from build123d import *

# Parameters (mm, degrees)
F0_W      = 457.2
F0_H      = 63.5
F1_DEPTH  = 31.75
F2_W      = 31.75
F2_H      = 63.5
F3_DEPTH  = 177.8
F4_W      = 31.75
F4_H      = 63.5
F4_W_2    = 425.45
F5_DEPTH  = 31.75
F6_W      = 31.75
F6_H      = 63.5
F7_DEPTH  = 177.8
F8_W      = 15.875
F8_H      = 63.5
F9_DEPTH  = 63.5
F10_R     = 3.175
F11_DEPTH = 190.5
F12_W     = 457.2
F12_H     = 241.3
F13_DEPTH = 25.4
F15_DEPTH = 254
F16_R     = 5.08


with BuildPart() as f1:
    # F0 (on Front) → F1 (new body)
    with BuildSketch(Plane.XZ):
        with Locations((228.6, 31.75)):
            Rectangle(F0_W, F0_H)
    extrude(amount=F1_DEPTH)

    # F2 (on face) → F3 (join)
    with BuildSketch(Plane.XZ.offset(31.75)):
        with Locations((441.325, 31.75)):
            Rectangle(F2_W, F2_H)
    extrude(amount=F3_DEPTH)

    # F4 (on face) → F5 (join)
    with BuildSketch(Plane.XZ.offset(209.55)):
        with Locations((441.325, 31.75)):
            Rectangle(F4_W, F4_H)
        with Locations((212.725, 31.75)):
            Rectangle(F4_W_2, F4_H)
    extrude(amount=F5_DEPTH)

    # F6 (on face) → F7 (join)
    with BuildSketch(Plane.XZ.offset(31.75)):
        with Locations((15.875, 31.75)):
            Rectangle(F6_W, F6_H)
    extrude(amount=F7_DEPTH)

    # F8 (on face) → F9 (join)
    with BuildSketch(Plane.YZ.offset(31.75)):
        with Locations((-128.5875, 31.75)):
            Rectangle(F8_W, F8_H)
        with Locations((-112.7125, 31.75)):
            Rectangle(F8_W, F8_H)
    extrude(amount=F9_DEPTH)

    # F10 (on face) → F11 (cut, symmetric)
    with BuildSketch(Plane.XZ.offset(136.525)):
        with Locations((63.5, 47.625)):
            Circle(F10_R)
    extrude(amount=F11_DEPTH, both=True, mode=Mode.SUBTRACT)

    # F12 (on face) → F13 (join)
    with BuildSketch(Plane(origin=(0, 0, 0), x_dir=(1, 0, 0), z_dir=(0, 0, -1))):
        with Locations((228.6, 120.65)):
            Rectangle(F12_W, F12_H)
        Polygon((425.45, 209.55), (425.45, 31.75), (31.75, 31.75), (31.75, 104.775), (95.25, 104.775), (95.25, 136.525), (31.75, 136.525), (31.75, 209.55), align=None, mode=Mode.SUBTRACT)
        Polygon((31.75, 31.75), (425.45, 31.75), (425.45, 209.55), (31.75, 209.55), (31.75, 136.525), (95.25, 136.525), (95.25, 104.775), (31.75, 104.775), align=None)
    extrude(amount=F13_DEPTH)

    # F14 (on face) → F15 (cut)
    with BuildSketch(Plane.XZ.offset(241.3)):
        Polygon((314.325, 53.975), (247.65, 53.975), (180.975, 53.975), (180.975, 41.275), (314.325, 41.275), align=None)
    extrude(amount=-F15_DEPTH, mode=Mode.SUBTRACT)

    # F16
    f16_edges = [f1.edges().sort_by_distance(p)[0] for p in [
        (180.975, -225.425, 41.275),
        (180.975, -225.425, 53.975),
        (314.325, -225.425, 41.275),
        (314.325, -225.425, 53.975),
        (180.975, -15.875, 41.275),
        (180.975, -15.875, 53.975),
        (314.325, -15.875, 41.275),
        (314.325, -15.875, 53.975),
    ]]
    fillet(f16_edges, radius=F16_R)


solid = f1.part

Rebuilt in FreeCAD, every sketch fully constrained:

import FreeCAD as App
import Part
import Sketcher
from FreeCAD import Vector
Q = App.Units.Quantity


def edges_at(feature, points):
    """Names of the edges that pass closest to the given points."""
    edges = feature.Shape.Edges
    near = lambda p: min(range(len(edges)), key=lambda i: edges[i].distToShape(Part.Vertex(*p))[0])
    return sorted({f"Edge{near(p) + 1}" for p in points})


def add_polygon(sketch, points):
    """Adds a closed chain of lines whose ends are joined by coincident constraints."""
    first, n = sketch.GeometryCount, len(points)
    for a, b in zip(points, points[1:] + points[:1]):
        sketch.addGeometry(Part.LineSegment(App.Vector(*a, 0), App.Vector(*b, 0)), False)
    for i in range(n):
        sketch.addConstraint(Sketcher.Constraint("Coincident", first + i, 2, first + (i + 1) % n, 1))

doc = App.newDocument("Part")
body = doc.addObject("PartDesign::Body", "Body")

# Sketch on XZ plane
sketch1 = doc.addObject("Sketcher::SketchObject", "Sketch")
body.addObject(sketch1)
sketch1.AttachmentSupport = (doc.XZ_Plane, [""])
sketch1.MapMode = "FlatFace"
add_polygon(sketch1, [(0, 64), (0, 0), (457, 0), (457, 64)])  # lines 0-3
sketch1.addConstraint([
    Sketcher.Constraint("Vertical", 0),
    Sketcher.Constraint("Horizontal", 1),
    Sketcher.Constraint("Vertical", 2),
    Sketcher.Constraint("Horizontal", 3),
    Sketcher.Constraint("Coincident", 0, 2, -1, 1),
    Sketcher.Constraint("DistanceX", 1, 1, 1, 2, Q("18 in")),
    Sketcher.Constraint("DistanceY", 0, 2, 0, 1, Q("2.5 in")),
])
pad1 = doc.addObject("PartDesign::Pad", "Pad")
body.addObject(pad1)
pad1.Profile = sketch1
pad1.Length = Q("1.25 in")

# Sketch on XZ plane
sketch2 = doc.addObject("Sketcher::SketchObject", "Sketch001")
body.addObject(sketch2)
sketch2.AttachmentSupport = (doc.XZ_Plane, [""])
sketch2.MapMode = "FlatFace"
sketch2.AttachmentOffset = App.Placement(Vector(0, 0, 1.25 * 25.4), App.Rotation())
add_polygon(sketch2, [(425, 64), (425, 0), (457, 0), (457, 64)])  # lines 0-3
sketch2.addConstraint([
    Sketcher.Constraint("Vertical", 0),
    Sketcher.Constraint("Horizontal", 1),
    Sketcher.Constraint("Vertical", 2),
    Sketcher.Constraint("Horizontal", 3),
    Sketcher.Constraint("PointOnObject", 0, 2, -1),
    Sketcher.Constraint("DistanceY", 0, 2, 0, 1, Q("2.5 in")),
    Sketcher.Constraint("DistanceX", -1, 1, 1, 2, Q("18 in")),
    Sketcher.Constraint("DistanceX", 1, 1, 1, 2, Q("1.25 in")),
])
pad2 = doc.addObject("PartDesign::Pad", "Pad001")
body.addObject(pad2)
pad2.Profile = sketch2
pad2.Length = Q("7 in")

# Sketch on XZ plane
sketch3 = doc.addObject("Sketcher::SketchObject", "Sketch002")
body.addObject(sketch3)
sketch3.AttachmentSupport = (doc.XZ_Plane, [""])
sketch3.MapMode = "FlatFace"
sketch3.AttachmentOffset = App.Placement(Vector(0, 0, 8.25 * 25.4), App.Rotation())
add_polygon(sketch3, [(457, 0), (457, 64), (0, 64), (0, 0)])  # lines 0-3
sketch3.addConstraint([
    Sketcher.Constraint("Vertical", 0),
    Sketcher.Constraint("Horizontal", 1),
    Sketcher.Constraint("Vertical", 2),
    Sketcher.Constraint("Horizontal", 3),
    Sketcher.Constraint("Coincident", 2, 2, -1, 1),
    Sketcher.Constraint("DistanceX", 1, 2, 1, 1, Q("18 in")),
    Sketcher.Constraint("DistanceY", 0, 1, 0, 2, Q("2.5 in")),
])
pad3 = doc.addObject("PartDesign::Pad", "Pad002")
body.addObject(pad3)
pad3.Profile = sketch3
pad3.Length = Q("1.25 in")

# Sketch on XZ plane
sketch4 = doc.addObject("Sketcher::SketchObject", "Sketch003")
body.addObject(sketch4)
sketch4.AttachmentSupport = (doc.XZ_Plane, [""])
sketch4.MapMode = "FlatFace"
sketch4.AttachmentOffset = App.Placement(Vector(0, 0, 1.25 * 25.4), App.Rotation())
add_polygon(sketch4, [(0, 64), (0, 0), (32, 0), (32, 64)])  # lines 0-3
sketch4.addConstraint([
    Sketcher.Constraint("Vertical", 0),
    Sketcher.Constraint("Horizontal", 1),
    Sketcher.Constraint("Vertical", 2),
    Sketcher.Constraint("Horizontal", 3),
    Sketcher.Constraint("Coincident", 0, 2, -1, 1),
    Sketcher.Constraint("DistanceY", 0, 2, 0, 1, Q("2.5 in")),
    Sketcher.Constraint("DistanceX", 1, 1, 1, 2, Q("1.25 in")),
])
pad4 = doc.addObject("PartDesign::Pad", "Pad003")
body.addObject(pad4)
pad4.Profile = sketch4
pad4.Length = Q("7 in")

# Sketch on YZ plane
sketch5 = doc.addObject("Sketcher::SketchObject", "Sketch004")
body.addObject(sketch5)
sketch5.AttachmentSupport = (doc.YZ_Plane, [""])
sketch5.MapMode = "FlatFace"
sketch5.AttachmentOffset = App.Placement(Vector(0, 0, 1.25 * 25.4), App.Rotation())
add_polygon(sketch5, [(-137, 64), (-137, 0), (-105, 0), (-105, 64)])  # lines 0-3
sketch5.addConstraint([
    Sketcher.Constraint("Vertical", 0),
    Sketcher.Constraint("Horizontal", 1),
    Sketcher.Constraint("Vertical", 2),
    Sketcher.Constraint("Horizontal", 3),
    Sketcher.Constraint("PointOnObject", 0, 2, -1),
    Sketcher.Constraint("DistanceY", 0, 2, 0, 1, Q("2.5 in")),
    Sketcher.Constraint("DistanceX", 1, 1, 1, 2, Q("1.25 in")),
    Sketcher.Constraint("DistanceX", 0, 2, -1, 1, Q("5.375 in")),
])
pad5 = doc.addObject("PartDesign::Pad", "Pad004")
body.addObject(pad5)
pad5.Profile = sketch5
pad5.Length = Q("2.5 in")

# Sketch on XZ plane
sketch6 = doc.addObject("Sketcher::SketchObject", "Sketch005")
body.addObject(sketch6)
sketch6.AttachmentSupport = (doc.XZ_Plane, [""])
sketch6.MapMode = "FlatFace"
sketch6.AttachmentOffset = App.Placement(Vector(0, 0, 5.375 * 25.4), App.Rotation())
sketch6.addGeometry(Part.Circle(Vector(63.5, 47.6, 0), Vector(0, 0, 1), 3.2), False)
sketch6.addConstraint([
    Sketcher.Constraint("Diameter", 0, Q("0.25 in")),
    Sketcher.Constraint("DistanceX", -1, 1, 0, 3, Q("2.5 in")),
    Sketcher.Constraint("DistanceY", -1, 1, 0, 3, Q("1.875 in")),
])
pocket1 = doc.addObject("PartDesign::Pocket", "Pocket")
body.addObject(pocket1)
pocket1.Profile = sketch6
pocket1.Length = Q("15 in")
pocket1.Midplane = True

# Sketch on XY plane
sketch7 = doc.addObject("Sketcher::SketchObject", "Sketch006")
body.addObject(sketch7)
sketch7.AttachmentSupport = (doc.XY_Plane, [""])
sketch7.MapMode = "FlatFace"
add_polygon(sketch7, [(0, -241), (0, 0), (457, 0), (457, -241)])  # lines 0-3
sketch7.addConstraint([
    Sketcher.Constraint("Vertical", 0),
    Sketcher.Constraint("Horizontal", 1),
    Sketcher.Constraint("Vertical", 2),
    Sketcher.Constraint("Horizontal", 3),
    Sketcher.Constraint("Coincident", 0, 2, -1, 1),
    Sketcher.Constraint("DistanceX", 1, 1, 1, 2, Q("18 in")),
    Sketcher.Constraint("DistanceY", 0, 1, 0, 2, Q("9.5 in")),
])
pad6 = doc.addObject("PartDesign::Pad", "Pad005")
body.addObject(pad6)
pad6.Profile = sketch7
pad6.Length = Q("1 in")
pad6.Reversed = True

# Sketch on XZ plane
sketch8 = doc.addObject("Sketcher::SketchObject", "Sketch007")
body.addObject(sketch8)
sketch8.AttachmentSupport = (doc.XZ_Plane, [""])
sketch8.MapMode = "FlatFace"
sketch8.AttachmentOffset = App.Placement(Vector(0, 0, 9.5 * 25.4), App.Rotation())
add_polygon(sketch8, [(314, 54), (181, 54), (181, 41), (314, 41)])  # lines 0-3
sketch8.addConstraint([
    Sketcher.Constraint("Horizontal", 0),
    Sketcher.Constraint("Vertical", 1),
    Sketcher.Constraint("Horizontal", 2),
    Sketcher.Constraint("Vertical", 3),
    Sketcher.Constraint("DistanceY", 1, 2, 1, 1, Q("0.5 in")),
    Sketcher.Constraint("DistanceX", 0, 2, 0, 1, Q("5.25 in")),
    Sketcher.Constraint("DistanceX", -1, 1, 0, 2, Q("7.125 in")),
    Sketcher.Constraint("DistanceY", -1, 1, 0, 2, Q("2.125 in")),
])
pocket2 = doc.addObject("PartDesign::Pocket", "Pocket001")
body.addObject(pocket2)
pocket2.Profile = sketch8
pocket2.Length = Q("10 in")
doc.recompute()

fillet = doc.addObject("PartDesign::Fillet", "Fillet")
body.addObject(fillet)
fillet.Base = (pocket2, edges_at(pocket2, [
    (180.975, -225.425, 41.275),
    (180.975, -225.425, 53.975),
    (314.325, -225.425, 41.275),
    (314.325, -225.425, 53.975),
    (180.975, -15.875, 41.275),
    (180.975, -15.875, 53.975),
    (314.325, -15.875, 41.275),
    (314.325, -15.875, 53.975),
]))
fillet.Radius = Q("0.2 in")

doc.recompute()
